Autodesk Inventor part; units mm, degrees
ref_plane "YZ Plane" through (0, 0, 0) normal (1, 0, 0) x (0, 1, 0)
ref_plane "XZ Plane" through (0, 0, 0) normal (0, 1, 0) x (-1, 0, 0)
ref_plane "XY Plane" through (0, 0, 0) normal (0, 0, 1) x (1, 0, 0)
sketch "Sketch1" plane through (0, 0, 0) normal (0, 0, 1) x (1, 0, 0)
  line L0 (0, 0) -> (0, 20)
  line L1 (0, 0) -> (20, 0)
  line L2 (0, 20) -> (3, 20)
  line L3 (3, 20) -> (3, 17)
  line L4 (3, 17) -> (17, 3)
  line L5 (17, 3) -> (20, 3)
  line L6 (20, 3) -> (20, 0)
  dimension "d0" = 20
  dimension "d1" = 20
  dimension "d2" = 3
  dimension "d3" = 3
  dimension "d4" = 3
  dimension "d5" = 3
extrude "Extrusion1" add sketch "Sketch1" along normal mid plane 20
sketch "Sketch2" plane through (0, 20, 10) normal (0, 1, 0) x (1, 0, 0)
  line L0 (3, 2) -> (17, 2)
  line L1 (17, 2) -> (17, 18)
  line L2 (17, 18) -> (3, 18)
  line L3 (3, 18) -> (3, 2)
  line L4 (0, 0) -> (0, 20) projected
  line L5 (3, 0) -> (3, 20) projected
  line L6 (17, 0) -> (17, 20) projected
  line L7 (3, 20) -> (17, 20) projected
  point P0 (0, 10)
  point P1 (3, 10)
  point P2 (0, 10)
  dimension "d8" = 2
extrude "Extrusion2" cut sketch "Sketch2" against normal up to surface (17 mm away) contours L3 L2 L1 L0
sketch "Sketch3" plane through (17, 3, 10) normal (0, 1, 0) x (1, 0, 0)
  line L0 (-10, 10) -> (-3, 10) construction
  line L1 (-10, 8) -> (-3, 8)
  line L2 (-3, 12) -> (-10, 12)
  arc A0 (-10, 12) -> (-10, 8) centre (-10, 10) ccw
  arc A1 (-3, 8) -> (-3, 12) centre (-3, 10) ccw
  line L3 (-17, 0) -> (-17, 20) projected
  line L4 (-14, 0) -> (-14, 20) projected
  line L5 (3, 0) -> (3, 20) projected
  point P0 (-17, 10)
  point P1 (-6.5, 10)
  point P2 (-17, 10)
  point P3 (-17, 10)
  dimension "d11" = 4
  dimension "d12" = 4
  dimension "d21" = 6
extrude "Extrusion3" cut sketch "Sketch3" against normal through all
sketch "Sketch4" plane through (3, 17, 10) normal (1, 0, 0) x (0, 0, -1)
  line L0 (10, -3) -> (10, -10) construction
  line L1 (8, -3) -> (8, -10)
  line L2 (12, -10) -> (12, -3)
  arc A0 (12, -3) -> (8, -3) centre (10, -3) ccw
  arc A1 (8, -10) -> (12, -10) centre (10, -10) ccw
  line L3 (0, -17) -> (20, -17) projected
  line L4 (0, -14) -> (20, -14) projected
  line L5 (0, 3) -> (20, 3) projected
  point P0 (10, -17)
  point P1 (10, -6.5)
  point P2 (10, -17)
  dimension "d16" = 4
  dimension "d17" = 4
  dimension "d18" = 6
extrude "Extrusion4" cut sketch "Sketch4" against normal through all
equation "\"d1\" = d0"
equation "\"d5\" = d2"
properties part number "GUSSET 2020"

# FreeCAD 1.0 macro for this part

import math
import FreeCAD as App
import Part
import Sketcher
from FreeCAD import Vector
Q = App.Units.Quantity

doc = App.newDocument("Part")
body = doc.addObject("PartDesign::Body", "Body")

# Sketch on XY plane
sketch1 = body.newObject("Sketcher::SketchObject", "Sketch")
sketch1.AttachmentSupport = (doc.getObject("XY_Plane"), [""])
sketch1.MapMode = "FlatFace"
sketch1.addGeometry([
    Part.LineSegment(Vector(0, 20, 0), Vector(0, 0, 0)),  # 0
    Part.LineSegment(Vector(0, 0, 0), Vector(20, 0, 0)),  # 1
    Part.LineSegment(Vector(20, 0, 0), Vector(20, 3, 0)),  # 2
    Part.LineSegment(Vector(20, 3, 0), Vector(17, 3, 0)),  # 3
    Part.LineSegment(Vector(17, 3, 0), Vector(3, 17, 0)),  # 4
    Part.LineSegment(Vector(3, 17, 0), Vector(3, 20, 0)),  # 5
    Part.LineSegment(Vector(3, 20, 0), Vector(0, 20, 0)),  # 6
], False)
sketch1.addConstraint([
    Sketcher.Constraint("Coincident", 0, 2, 1, 1),
    Sketcher.Constraint("Coincident", 1, 2, 2, 1),
    Sketcher.Constraint("Coincident", 2, 2, 3, 1),
    Sketcher.Constraint("Coincident", 3, 2, 4, 1),
    Sketcher.Constraint("Coincident", 4, 2, 5, 1),
    Sketcher.Constraint("Coincident", 5, 2, 6, 1),
    Sketcher.Constraint("Coincident", 6, 2, 0, 1),
    Sketcher.Constraint("Vertical", 0),
    Sketcher.Constraint("Horizontal", 1),
    Sketcher.Constraint("Vertical", 2),
    Sketcher.Constraint("Horizontal", 3),
    Sketcher.Constraint("Vertical", 5),
    Sketcher.Constraint("Horizontal", 6),
    Sketcher.Constraint("Coincident", 0, 2, -1, 1),
    Sketcher.Constraint("Equal", 3, 6),
    Sketcher.Constraint("Equal", 1, 0),
    Sketcher.Constraint("Equal", 6, 2),
    Sketcher.Constraint("Equal", 2, 5),
    Sketcher.Constraint("DistanceX", 1, 1, 1, 2, Q("20 mm")),
    Sketcher.Constraint("DistanceX", 3, 2, 3, 1, Q("3 mm")),
])
pad1 = body.newObject("PartDesign::Pad", "Pad")
pad1.Profile = sketch1
pad1.Length = 20
pad1.Midplane = True

# Sketch on XZ plane
sketch2 = body.newObject("Sketcher::SketchObject", "Sketch001")
sketch2.AttachmentSupport = (doc.getObject("XZ_Plane"), [""])
sketch2.MapMode = "FlatFace"
sketch2.AttachmentOffset = App.Placement(Vector(0, 0, -20), App.Rotation())
sketch2.addGeometry([
    Part.LineSegment(Vector(3, -8, 0), Vector(3, 8, 0)),
    Part.LineSegment(Vector(3, 8, 0), Vector(17, 8, 0)),
    Part.LineSegment(Vector(17, 8, 0), Vector(17, -8, 0)),
    Part.LineSegment(Vector(17, -8, 0), Vector(3, -8, 0)),
], False)
sketch2.addConstraint([
    Sketcher.Constraint("Coincident", 0, 2, 1, 1),
    Sketcher.Constraint("Coincident", 1, 2, 2, 1),
    Sketcher.Constraint("Coincident", 2, 2, 3, 1),
    Sketcher.Constraint("Coincident", 3, 2, 0, 1),
    Sketcher.Constraint("Vertical", 0),
    Sketcher.Constraint("Horizontal", 1),
    Sketcher.Constraint("Vertical", 2),
    Sketcher.Constraint("Horizontal", 3),
    Sketcher.Constraint("DistanceX", 1, 1, 1, 2, Q("14 mm")),
    Sketcher.Constraint("DistanceY", 0, 1, 0, 2, Q("16 mm")),
    Sketcher.Constraint("DistanceX", -1, 1, 0, 2, Q("3 mm")),
    Sketcher.Constraint("DistanceY", -1, 1, 0, 2, Q("8 mm")),
])
pocket1 = body.newObject("PartDesign::Pocket", "Pocket")
pocket1.Profile = sketch2
pocket1.Length = 17
pocket1.Reversed = True

# Sketch on XZ plane
sketch3 = body.newObject("Sketcher::SketchObject", "Sketch002")
sketch3.AttachmentSupport = (doc.getObject("XZ_Plane"), [""])
sketch3.MapMode = "FlatFace"
sketch3.AttachmentOffset = App.Placement(Vector(0, 0, -3), App.Rotation())
sketch3.addGeometry([
    Part.ArcOfCircle(Part.Circle(Vector(7, 0, 0), Vector(0, 0, 1), 2), math.radians(90), math.radians(270)),
    Part.LineSegment(Vector(7, 2, 0), Vector(14, 2, 0)),
    Part.ArcOfCircle(Part.Circle(Vector(14, 0, 0), Vector(0, 0, 1), 2), math.radians(-90), math.radians(90)),
    Part.LineSegment(Vector(14, -2, 0), Vector(7, -2, 0)),
], False)
sketch3.addConstraint([
    Sketcher.Constraint("Tangent", 0, 1, 1, 1),
    Sketcher.Constraint("Tangent", 1, 2, 2, 2),
    Sketcher.Constraint("Tangent", 2, 1, 3, 1),
    Sketcher.Constraint("Tangent", 3, 2, 0, 2),
    Sketcher.Constraint("Horizontal", 1),
    Sketcher.Constraint("Horizontal", 3),
    Sketcher.Constraint("PointOnObject", 0, 3, -1),
    Sketcher.Constraint("Radius", 0, Q("2 mm")),
    Sketcher.Constraint("DistanceX", 1, 1, 1, 2, Q("7 mm")),
    Sketcher.Constraint("DistanceX", -1, 1, 0, 3, Q("7 mm")),
])
pocket2 = body.newObject("PartDesign::Pocket", "Pocket001")
pocket2.Profile = sketch3
pocket2.Type = "ThroughAll"
pocket2.Reversed = True

# Sketch on YZ plane
sketch4 = body.newObject("Sketcher::SketchObject", "Sketch003")
sketch4.AttachmentSupport = (doc.getObject("YZ_Plane"), [""])
sketch4.MapMode = "FlatFace"
sketch4.AttachmentOffset = App.Placement(Vector(0, 0, 3), App.Rotation())
sketch4.addGeometry([
    Part.ArcOfCircle(Part.Circle(Vector(14, 0, 0), Vector(0, 0, 1), 2), math.radians(-90), math.radians(90)),
    Part.LineSegment(Vector(14, 2, 0), Vector(7, 2, 0)),
    Part.ArcOfCircle(Part.Circle(Vector(7, 0, 0), Vector(0, 0, 1), 2), math.radians(90), math.radians(270)),
    Part.LineSegment(Vector(7, -2, 0), Vector(14, -2, 0)),
], False)
sketch4.addConstraint([
    Sketcher.Constraint("Tangent", 0, 2, 1, 1),
    Sketcher.Constraint("Tangent", 1, 2, 2, 1),
    Sketcher.Constraint("Tangent", 2, 2, 3, 1),
    Sketcher.Constraint("Tangent", 3, 2, 0, 1),
    Sketcher.Constraint("Horizontal", 1),
    Sketcher.Constraint("Horizontal", 3),
    Sketcher.Constraint("PointOnObject", 0, 3, -1),
    Sketcher.Constraint("Radius", 0, Q("2 mm")),
    Sketcher.Constraint("DistanceX", 1, 2, 1, 1, Q("7 mm")),
    Sketcher.Constraint("DistanceX", -1, 1, 0, 3, Q("14 mm")),
])
pocket3 = body.newObject("PartDesign::Pocket", "Pocket002")
pocket3.Profile = sketch4
pocket3.Type = "ThroughAll"

doc.recompute()
